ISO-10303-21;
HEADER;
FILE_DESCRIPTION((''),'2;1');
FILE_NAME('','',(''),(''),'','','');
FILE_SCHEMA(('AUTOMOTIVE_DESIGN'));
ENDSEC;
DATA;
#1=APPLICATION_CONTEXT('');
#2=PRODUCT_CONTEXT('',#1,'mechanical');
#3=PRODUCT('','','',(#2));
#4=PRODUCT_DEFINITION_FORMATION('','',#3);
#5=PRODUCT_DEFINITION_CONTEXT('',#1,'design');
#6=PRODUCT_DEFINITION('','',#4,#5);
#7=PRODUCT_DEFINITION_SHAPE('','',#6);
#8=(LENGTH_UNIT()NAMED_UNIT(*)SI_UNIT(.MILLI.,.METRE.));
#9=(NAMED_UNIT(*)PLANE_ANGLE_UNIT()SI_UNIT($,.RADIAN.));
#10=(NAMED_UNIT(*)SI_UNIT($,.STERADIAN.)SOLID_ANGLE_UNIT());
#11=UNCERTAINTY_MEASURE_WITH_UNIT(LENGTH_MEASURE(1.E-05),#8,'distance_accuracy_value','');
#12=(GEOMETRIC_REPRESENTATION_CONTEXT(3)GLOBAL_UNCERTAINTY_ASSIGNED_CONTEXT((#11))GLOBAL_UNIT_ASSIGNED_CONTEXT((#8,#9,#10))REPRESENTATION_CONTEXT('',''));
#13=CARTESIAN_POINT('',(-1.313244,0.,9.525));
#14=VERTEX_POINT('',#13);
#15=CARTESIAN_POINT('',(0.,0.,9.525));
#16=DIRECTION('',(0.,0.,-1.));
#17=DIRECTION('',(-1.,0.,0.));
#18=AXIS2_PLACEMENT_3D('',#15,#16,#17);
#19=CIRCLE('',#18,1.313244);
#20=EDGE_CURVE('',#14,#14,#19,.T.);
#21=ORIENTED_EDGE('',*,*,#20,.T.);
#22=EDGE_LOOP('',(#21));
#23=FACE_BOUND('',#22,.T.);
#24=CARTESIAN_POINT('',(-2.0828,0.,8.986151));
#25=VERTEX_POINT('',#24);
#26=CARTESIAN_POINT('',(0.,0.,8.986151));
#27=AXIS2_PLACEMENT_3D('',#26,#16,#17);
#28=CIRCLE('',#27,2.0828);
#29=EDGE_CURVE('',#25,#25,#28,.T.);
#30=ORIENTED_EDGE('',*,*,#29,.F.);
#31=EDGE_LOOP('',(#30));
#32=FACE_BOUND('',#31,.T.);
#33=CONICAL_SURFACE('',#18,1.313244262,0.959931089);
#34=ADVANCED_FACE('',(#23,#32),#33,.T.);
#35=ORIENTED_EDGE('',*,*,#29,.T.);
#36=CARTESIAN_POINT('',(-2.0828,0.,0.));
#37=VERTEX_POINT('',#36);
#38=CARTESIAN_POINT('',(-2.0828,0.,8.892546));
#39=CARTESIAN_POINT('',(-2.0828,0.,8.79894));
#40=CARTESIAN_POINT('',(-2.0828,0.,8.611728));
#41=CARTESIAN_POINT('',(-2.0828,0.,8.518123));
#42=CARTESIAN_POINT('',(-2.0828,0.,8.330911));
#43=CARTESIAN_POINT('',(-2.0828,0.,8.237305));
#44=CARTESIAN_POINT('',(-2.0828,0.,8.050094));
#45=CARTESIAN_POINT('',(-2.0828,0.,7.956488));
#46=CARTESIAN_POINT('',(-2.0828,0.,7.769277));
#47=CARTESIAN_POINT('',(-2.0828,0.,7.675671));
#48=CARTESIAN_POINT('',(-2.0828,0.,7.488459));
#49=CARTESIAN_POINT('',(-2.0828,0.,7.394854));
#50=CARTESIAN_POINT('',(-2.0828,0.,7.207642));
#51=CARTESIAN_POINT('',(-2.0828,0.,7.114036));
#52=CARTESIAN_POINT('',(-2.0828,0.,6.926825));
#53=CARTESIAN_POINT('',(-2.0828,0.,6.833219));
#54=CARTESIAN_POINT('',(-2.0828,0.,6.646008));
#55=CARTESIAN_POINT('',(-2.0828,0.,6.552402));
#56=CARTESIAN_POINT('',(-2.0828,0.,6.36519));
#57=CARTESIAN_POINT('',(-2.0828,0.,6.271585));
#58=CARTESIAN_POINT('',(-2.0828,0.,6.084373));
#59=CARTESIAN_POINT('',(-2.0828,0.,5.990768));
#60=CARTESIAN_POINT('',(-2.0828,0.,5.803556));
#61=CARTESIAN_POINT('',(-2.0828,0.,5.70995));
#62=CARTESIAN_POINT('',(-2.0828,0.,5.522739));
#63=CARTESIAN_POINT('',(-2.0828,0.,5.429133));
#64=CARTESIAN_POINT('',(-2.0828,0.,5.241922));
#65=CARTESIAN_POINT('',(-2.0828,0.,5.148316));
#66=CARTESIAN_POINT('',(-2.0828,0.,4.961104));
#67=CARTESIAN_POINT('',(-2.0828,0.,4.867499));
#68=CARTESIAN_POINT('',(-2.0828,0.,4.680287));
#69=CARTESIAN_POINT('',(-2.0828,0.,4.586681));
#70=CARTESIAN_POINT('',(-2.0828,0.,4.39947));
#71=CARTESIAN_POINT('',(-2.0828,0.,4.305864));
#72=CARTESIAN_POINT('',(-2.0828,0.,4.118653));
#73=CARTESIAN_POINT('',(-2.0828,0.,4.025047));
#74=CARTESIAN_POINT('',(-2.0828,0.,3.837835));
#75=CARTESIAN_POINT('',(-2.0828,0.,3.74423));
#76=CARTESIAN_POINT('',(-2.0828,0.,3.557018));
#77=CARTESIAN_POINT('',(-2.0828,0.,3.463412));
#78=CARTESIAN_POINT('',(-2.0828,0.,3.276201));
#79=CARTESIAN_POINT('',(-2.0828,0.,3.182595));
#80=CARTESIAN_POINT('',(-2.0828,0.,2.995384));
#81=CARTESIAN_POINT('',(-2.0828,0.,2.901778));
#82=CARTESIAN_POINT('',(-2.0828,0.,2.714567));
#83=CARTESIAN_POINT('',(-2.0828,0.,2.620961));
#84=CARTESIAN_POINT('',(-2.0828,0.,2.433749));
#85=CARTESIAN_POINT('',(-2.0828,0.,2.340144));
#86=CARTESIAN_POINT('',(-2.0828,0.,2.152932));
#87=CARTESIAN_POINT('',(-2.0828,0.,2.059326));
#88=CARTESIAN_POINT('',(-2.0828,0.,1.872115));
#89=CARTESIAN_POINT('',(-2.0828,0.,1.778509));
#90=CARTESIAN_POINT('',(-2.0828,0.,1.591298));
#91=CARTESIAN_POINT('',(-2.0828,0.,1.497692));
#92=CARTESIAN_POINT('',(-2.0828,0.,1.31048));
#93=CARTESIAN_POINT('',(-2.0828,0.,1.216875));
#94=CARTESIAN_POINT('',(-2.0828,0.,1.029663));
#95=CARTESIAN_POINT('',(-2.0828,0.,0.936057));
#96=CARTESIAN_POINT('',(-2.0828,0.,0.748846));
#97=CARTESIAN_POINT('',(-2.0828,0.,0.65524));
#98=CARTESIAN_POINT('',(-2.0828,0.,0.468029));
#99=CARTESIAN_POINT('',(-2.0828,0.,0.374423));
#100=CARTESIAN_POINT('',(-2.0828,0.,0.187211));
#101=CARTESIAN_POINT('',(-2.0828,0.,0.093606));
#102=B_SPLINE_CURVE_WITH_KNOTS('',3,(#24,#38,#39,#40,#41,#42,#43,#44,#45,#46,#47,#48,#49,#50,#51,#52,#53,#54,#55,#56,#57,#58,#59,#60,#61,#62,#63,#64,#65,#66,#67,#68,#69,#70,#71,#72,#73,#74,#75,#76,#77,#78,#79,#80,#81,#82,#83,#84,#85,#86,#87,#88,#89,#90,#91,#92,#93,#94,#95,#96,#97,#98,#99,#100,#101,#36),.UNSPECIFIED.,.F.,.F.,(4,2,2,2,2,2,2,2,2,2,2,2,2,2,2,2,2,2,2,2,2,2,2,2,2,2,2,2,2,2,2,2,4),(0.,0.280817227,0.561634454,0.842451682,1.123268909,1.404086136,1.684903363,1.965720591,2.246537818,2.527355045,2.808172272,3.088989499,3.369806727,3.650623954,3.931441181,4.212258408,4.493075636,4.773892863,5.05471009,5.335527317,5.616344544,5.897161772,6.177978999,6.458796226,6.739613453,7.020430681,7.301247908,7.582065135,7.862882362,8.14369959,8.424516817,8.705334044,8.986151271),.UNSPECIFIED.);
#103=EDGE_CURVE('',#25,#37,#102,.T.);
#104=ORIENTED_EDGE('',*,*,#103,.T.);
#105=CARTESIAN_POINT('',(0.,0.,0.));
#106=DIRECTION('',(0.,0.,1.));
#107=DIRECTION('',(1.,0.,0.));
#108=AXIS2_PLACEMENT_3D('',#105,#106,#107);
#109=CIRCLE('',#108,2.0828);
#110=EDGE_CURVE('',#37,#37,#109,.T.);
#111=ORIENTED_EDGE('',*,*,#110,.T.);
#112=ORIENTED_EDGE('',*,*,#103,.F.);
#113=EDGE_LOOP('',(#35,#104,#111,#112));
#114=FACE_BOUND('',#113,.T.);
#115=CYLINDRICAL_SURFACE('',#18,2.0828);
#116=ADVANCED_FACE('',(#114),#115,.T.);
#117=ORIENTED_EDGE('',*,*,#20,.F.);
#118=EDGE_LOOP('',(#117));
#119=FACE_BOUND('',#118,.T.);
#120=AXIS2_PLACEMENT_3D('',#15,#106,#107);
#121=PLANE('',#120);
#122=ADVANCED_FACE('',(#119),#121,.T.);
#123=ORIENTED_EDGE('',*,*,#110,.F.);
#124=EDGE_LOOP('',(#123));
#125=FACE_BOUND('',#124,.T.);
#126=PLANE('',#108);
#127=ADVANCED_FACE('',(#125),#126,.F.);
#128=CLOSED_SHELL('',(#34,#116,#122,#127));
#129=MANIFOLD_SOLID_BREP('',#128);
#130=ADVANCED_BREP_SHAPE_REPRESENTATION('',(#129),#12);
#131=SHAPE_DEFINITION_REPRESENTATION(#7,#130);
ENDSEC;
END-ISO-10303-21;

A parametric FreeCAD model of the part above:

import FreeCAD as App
import Part
import Sketcher
from FreeCAD import Vector
Q = App.Units.Quantity

doc = App.newDocument("Part")
body = doc.addObject("PartDesign::Body", "Body")

# Sketch on XY plane
sketch1 = doc.addObject("Sketcher::SketchObject", "Sketch")
body.addObject(sketch1)
sketch1.AttachmentSupport = (doc.XY_Plane, [""])
sketch1.MapMode = "FlatFace"
sketch1.addGeometry(Part.Circle(Vector(0, 0, 0), Vector(0, 0, 1), 2.1), False)
sketch1.addConstraint(Sketcher.Constraint("Coincident", 0, 3, -1, 1))
sketch1.addConstraint(Sketcher.Constraint("Diameter", 0, Q("0.164 in")))
pad1 = doc.addObject("PartDesign::Pad", "Pad")
body.addObject(pad1)
pad1.Profile = sketch1
pad1.Length = Q("0.375 in")

# Sketch on YZ plane
sketch2 = doc.addObject("Sketcher::SketchObject", "Sketch001")
body.addObject(sketch2)
sketch2.AttachmentSupport = (doc.YZ_Plane, [""])
sketch2.MapMode = "FlatFace"
sketch2.addGeometry(Part.LineSegment(Vector(2.1, 9.5, 0), Vector(1.3, 9.5, 0)), False)
sketch2.addGeometry(Part.LineSegment(Vector(1.3, 9.5, 0), Vector(2.1, 9, 0)), False)
sketch2.addGeometry(Part.LineSegment(Vector(2.1, 9, 0), Vector(2.1, 9.5, 0)), False)
sketch2.addConstraint(Sketcher.Constraint("Coincident", 0, 2, 1, 1))
sketch2.addConstraint(Sketcher.Constraint("Coincident", 1, 2, 2, 1))
sketch2.addConstraint(Sketcher.Constraint("Coincident", 2, 2, 0, 1))
sketch2.addConstraint(Sketcher.Constraint("Horizontal", 0))
sketch2.addConstraint(Sketcher.Constraint("Vertical", 2))
sketch2.addConstraint(Sketcher.Constraint("Angle", 1, Q("-35 deg")))
sketch2.addConstraint(Sketcher.Constraint("DistanceY", -1, 1, 0, 2, Q("0.375 in")))
sketch2.addConstraint(Sketcher.Constraint("DistanceX", -1, 1, 1, 2, Q("0.082 in")))
sketch2.addConstraint(Sketcher.Constraint("DistanceY", 2, 1, 2, 2, Q("0.538849 mm")))
groove = doc.addObject("PartDesign::Groove", "Groove")
body.addObject(groove)
groove.Profile = sketch2
groove.ReferenceAxis = (sketch2, ["V_Axis"])
groove.Angle = 360

doc.recompute()
